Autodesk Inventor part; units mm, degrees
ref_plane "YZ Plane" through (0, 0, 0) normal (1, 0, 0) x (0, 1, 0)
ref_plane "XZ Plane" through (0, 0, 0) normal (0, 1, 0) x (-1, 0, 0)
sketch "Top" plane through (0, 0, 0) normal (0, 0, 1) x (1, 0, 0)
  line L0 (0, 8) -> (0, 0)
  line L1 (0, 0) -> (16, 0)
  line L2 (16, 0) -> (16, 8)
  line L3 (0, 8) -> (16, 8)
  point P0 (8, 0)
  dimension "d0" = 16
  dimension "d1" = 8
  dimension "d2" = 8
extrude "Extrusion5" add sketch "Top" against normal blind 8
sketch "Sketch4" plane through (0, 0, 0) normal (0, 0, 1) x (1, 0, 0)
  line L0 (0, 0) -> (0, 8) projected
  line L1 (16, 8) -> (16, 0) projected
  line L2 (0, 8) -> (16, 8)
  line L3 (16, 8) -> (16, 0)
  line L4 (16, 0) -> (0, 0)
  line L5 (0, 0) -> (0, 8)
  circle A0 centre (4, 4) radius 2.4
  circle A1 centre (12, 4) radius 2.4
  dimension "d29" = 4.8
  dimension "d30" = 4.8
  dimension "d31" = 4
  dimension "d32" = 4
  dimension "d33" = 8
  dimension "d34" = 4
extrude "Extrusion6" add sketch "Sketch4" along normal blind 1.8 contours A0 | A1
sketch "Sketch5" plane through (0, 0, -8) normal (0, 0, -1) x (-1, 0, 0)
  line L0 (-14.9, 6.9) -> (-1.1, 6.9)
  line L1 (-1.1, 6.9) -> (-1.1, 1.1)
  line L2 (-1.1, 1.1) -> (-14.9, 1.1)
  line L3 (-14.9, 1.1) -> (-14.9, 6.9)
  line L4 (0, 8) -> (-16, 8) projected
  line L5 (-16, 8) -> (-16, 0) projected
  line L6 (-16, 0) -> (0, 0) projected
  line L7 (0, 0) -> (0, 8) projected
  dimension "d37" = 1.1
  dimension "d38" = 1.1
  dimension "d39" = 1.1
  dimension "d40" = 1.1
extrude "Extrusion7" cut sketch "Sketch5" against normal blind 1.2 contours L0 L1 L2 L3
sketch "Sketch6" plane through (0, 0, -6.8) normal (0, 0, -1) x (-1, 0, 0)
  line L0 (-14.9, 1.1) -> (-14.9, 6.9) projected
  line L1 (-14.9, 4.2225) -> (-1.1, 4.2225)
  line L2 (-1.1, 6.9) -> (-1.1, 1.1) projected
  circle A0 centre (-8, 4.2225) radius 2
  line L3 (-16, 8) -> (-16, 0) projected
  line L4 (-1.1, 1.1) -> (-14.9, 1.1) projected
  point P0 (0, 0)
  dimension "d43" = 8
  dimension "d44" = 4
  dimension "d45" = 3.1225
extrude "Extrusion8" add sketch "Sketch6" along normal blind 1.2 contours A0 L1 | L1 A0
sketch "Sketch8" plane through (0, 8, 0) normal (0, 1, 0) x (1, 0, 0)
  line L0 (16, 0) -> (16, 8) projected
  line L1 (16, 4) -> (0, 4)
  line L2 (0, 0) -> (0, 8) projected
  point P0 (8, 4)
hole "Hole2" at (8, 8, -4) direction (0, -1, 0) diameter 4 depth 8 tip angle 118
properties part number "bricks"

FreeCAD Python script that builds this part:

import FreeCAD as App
import Part
import Sketcher

V = App.Vector


def add_polygon(sketch, points):
    """Adds a closed chain of lines whose ends are joined by coincident constraints."""
    first, n = sketch.GeometryCount, len(points)
    for a, b in zip(points, points[1:] + points[:1]):
        sketch.addGeometry(Part.LineSegment(App.Vector(*a, 0), App.Vector(*b, 0)), False)
    for i in range(n):
        sketch.addConstraint(Sketcher.Constraint("Coincident", first + i, 2, first + (i + 1) % n, 1))

doc = App.newDocument("Part")
body = doc.addObject("PartDesign::Body", "Body")

# Sketch on XY plane
sketch1 = doc.addObject("Sketcher::SketchObject", "Sketch")
body.addObject(sketch1)
sketch1.AttachmentSupport = (doc.XY_Plane, [""])
sketch1.MapMode = "FlatFace"
add_polygon(sketch1, [(16, 8), (0, 8), (0, 0), (16, 0)])  # lines 0-3
sketch1.addConstraint(Sketcher.Constraint("Horizontal", 0))
sketch1.addConstraint(Sketcher.Constraint("Vertical", 1))
sketch1.addConstraint(Sketcher.Constraint("Horizontal", 2))
sketch1.addConstraint(Sketcher.Constraint("Vertical", 3))
sketch1.addConstraint(Sketcher.Constraint("Coincident", 1, 2, -1, 1))
sketch1.addConstraint(Sketcher.Constraint("DistanceX", 0, 2, 0, 1, 16.0))
sketch1.addConstraint(Sketcher.Constraint("DistanceY", 1, 2, 1, 1, 8.0))
pad1 = doc.addObject("PartDesign::Pad", "Pad")
body.addObject(pad1)
pad1.Profile = sketch1
pad1.Length = 8
pad1.Reversed = True

# Sketch on XY plane
sketch2 = doc.addObject("Sketcher::SketchObject", "Sketch001")
body.addObject(sketch2)
sketch2.AttachmentSupport = (doc.XY_Plane, [""])
sketch2.MapMode = "FlatFace"
sketch2.addGeometry(Part.Circle(V(4, 4, 0), V(0, 0, 1), 2.4), False)
sketch2.addGeometry(Part.Circle(V(12, 4, 0), V(0, 0, 1), 2.4), False)
sketch2.addConstraint(Sketcher.Constraint("Equal", 0, 1))
sketch2.addConstraint(Sketcher.Constraint("Horizontal", 0, 3, 1, 3))
sketch2.addConstraint(Sketcher.Constraint("Diameter", 0, 4.8))
sketch2.addConstraint(Sketcher.Constraint("DistanceX", -1, 1, 0, 3, 4.0))
sketch2.addConstraint(Sketcher.Constraint("DistanceY", -1, 1, 0, 3, 4.0))
sketch2.addConstraint(Sketcher.Constraint("DistanceX", 0, 3, 1, 3, 8.0))
pad2 = doc.addObject("PartDesign::Pad", "Pad001")
body.addObject(pad2)
pad2.Profile = sketch2
pad2.Length = 1.8

# Sketch on XY plane
sketch3 = doc.addObject("Sketcher::SketchObject", "Sketch002")
body.addObject(sketch3)
sketch3.AttachmentSupport = (doc.XY_Plane, [""])
sketch3.MapMode = "FlatFace"
sketch3.AttachmentOffset = App.Placement(V(0, 0, -8), App.Rotation())
add_polygon(sketch3, [(1.1, 6.9), (14.9, 6.9), (14.9, 1.1), (1.1, 1.1)])  # lines 0-3
sketch3.addConstraint(Sketcher.Constraint("Horizontal", 0))
sketch3.addConstraint(Sketcher.Constraint("Vertical", 1))
sketch3.addConstraint(Sketcher.Constraint("Horizontal", 2))
sketch3.addConstraint(Sketcher.Constraint("Vertical", 3))
sketch3.addConstraint(Sketcher.Constraint("DistanceY", -1, 1, 1, 2, 1.1))
sketch3.addConstraint(Sketcher.Constraint("DistanceX", -1, 1, 2, 2, 1.1))
sketch3.addConstraint(Sketcher.Constraint("DistanceX", 0, 1, 0, 2, 13.8))
sketch3.addConstraint(Sketcher.Constraint("DistanceY", 1, 2, 1, 1, 5.8))
pocket1 = doc.addObject("PartDesign::Pocket", "Pocket")
body.addObject(pocket1)
pocket1.Profile = sketch3
pocket1.Length = 1.2
pocket1.Reversed = True

# Sketch on XY plane
sketch4 = doc.addObject("Sketcher::SketchObject", "Sketch003")
body.addObject(sketch4)
sketch4.AttachmentSupport = (doc.XY_Plane, [""])
sketch4.MapMode = "FlatFace"
sketch4.AttachmentOffset = App.Placement(V(0, 0, -6.8), App.Rotation())
sketch4.addGeometry(Part.Circle(V(8, 4.2225, 0), V(0, 0, 1), 2), False)
sketch4.addConstraint(Sketcher.Constraint("Diameter", 0, 4.0))
sketch4.addConstraint(Sketcher.Constraint("DistanceX", -1, 1, 0, 3, 8.0))
sketch4.addConstraint(Sketcher.Constraint("DistanceY", -1, 1, 0, 3, 4.2225))
pad3 = doc.addObject("PartDesign::Pad", "Pad002")
body.addObject(pad3)
pad3.Profile = sketch4
pad3.Length = 1.2
pad3.Reversed = True

# Sketch on XZ plane
sketch5 = doc.addObject("Sketcher::SketchObject", "Sketch004")
body.addObject(sketch5)
sketch5.AttachmentSupport = (doc.XZ_Plane, [""])
sketch5.MapMode = "FlatFace"
sketch5.AttachmentOffset = App.Placement(V(0, 0, -8), App.Rotation())
sketch5.addGeometry(Part.Circle(V(8, -4, 0), V(0, 0, 1), 2), False)
sketch5.addConstraint(Sketcher.Constraint("Diameter", 0, 4.0))
sketch5.addConstraint(Sketcher.Constraint("DistanceX", -1, 1, 0, 3, 8.0))
sketch5.addConstraint(Sketcher.Constraint("DistanceY", 0, 3, -1, 1, 4.0))
doc.recompute()
hole = doc.addObject("PartDesign::Hole", "Hole")
body.addObject(hole)
hole.Profile = sketch5
hole.ThreadType = "None"
hole.Diameter = 4
hole.DepthType = "Dimension"
hole.Depth = 8
hole.DrillPoint = "Angled"
hole.DrillPointAngle = 118
hole.Reversed = True

doc.recompute()
